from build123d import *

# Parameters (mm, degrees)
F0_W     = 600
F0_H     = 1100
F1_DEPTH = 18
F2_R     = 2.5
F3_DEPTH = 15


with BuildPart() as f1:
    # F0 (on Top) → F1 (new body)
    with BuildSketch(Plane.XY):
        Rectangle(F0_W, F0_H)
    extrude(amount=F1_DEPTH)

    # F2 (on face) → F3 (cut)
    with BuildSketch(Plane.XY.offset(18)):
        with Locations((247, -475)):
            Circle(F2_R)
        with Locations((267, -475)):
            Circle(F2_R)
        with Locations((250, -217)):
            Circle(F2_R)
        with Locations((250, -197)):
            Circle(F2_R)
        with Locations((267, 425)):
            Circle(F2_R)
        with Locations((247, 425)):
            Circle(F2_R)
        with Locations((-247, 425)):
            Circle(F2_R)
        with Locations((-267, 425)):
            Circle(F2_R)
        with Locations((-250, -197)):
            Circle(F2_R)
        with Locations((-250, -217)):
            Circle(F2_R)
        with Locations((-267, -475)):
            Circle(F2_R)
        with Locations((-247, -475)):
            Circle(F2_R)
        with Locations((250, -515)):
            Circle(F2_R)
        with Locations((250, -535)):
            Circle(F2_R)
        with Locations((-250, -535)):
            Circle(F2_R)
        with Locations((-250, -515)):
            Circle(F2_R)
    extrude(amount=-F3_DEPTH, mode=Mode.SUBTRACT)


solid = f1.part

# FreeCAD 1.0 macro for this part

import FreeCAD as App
import Part
import Sketcher
Q = App.Units.Quantity

doc = App.newDocument("Part")
params = doc.addObject("Spreadsheet::Sheet", "Params")
for row, (alias, value) in enumerate([
    ("sketch1_width", "600 mm"),
    ("sketch1_height", "1100 mm"),
    ("pad1_length", "18 mm"),
    ("sketch2_diameter", "5 mm"),
    ("pocket1_length", "15 mm"),
], start=1):
    params.set(f"A{row}", alias)
    params.set(f"B{row}", "=" + value)
    params.setAlias(f"B{row}", alias)

body = doc.addObject("PartDesign::Body", "Body")

# Sketch on XY plane
sketch1 = body.newObject("Sketcher::SketchObject", "Sketch")
sketch1.AttachmentSupport = (doc.getObject("XY_Plane"), [""])
sketch1.MapMode = "FlatFace"
sketch1.addGeometry([
    Part.LineSegment(App.Vector(-300, 550, 0), App.Vector(-300, -550, 0)),
    Part.LineSegment(App.Vector(-300, -550, 0), App.Vector(300, -550, 0)),
    Part.LineSegment(App.Vector(300, -550, 0), App.Vector(300, 550, 0)),
    Part.LineSegment(App.Vector(300, 550, 0), App.Vector(-300, 550, 0)),
], False)
sketch1.addConstraint([
    Sketcher.Constraint("Coincident", 0, 2, 1, 1),
    Sketcher.Constraint("Coincident", 1, 2, 2, 1),
    Sketcher.Constraint("Coincident", 2, 2, 3, 1),
    Sketcher.Constraint("Coincident", 3, 2, 0, 1),
    Sketcher.Constraint("Vertical", 0),
    Sketcher.Constraint("Horizontal", 1),
    Sketcher.Constraint("Vertical", 2),
    Sketcher.Constraint("Horizontal", 3),
    Sketcher.Constraint("Symmetric", 0, 2, 2, 2, -1, 1),
    Sketcher.Constraint("DistanceX", 1, 1, 1, 2, Q("600 mm")),
    Sketcher.Constraint("DistanceY", 0, 2, 0, 1, Q("1100 mm")),
])
sketch1.setExpression("Constraints[9]", "Params.sketch1_width")
sketch1.setExpression("Constraints[10]", "Params.sketch1_height")
pad1 = body.newObject("PartDesign::Pad", "Pad")
pad1.Profile = sketch1
pad1.setExpression("Length", "Params.pad1_length")

# Sketch on XY plane
sketch2 = body.newObject("Sketcher::SketchObject", "Sketch001")
sketch2.AttachmentSupport = (doc.getObject("XY_Plane"), [""])
sketch2.MapMode = "FlatFace"
sketch2.AttachmentOffset = App.Placement(App.Vector(0, 0, 18), App.Rotation())
sketch2.addGeometry([
    Part.Circle(App.Vector(247, -475, 0), App.Vector(0, 0, 1), 2.5),  # 0
    Part.Circle(App.Vector(267, -475, 0), App.Vector(0, 0, 1), 2.5),  # 1
    Part.Circle(App.Vector(250, -217, 0), App.Vector(0, 0, 1), 2.5),  # 2
    Part.Circle(App.Vector(250, -197, 0), App.Vector(0, 0, 1), 2.5),  # 3
    Part.Circle(App.Vector(267, 425, 0), App.Vector(0, 0, 1), 2.5),  # 4
    Part.Circle(App.Vector(247, 425, 0), App.Vector(0, 0, 1), 2.5),  # 5
    Part.Circle(App.Vector(-247, 425, 0), App.Vector(0, 0, 1), 2.5),  # 6
    Part.Circle(App.Vector(-267, 425, 0), App.Vector(0, 0, 1), 2.5),  # 7
    Part.Circle(App.Vector(-250, -197, 0), App.Vector(0, 0, 1), 2.5),  # 8
    Part.Circle(App.Vector(-250, -217, 0), App.Vector(0, 0, 1), 2.5),  # 9
    Part.Circle(App.Vector(-267, -475, 0), App.Vector(0, 0, 1), 2.5),  # 10
    Part.Circle(App.Vector(-247, -475, 0), App.Vector(0, 0, 1), 2.5),  # 11
    Part.Circle(App.Vector(250, -515, 0), App.Vector(0, 0, 1), 2.5),  # 12
    Part.Circle(App.Vector(250, -535, 0), App.Vector(0, 0, 1), 2.5),  # 13
    Part.Circle(App.Vector(-250, -535, 0), App.Vector(0, 0, 1), 2.5),  # 14
    Part.Circle(App.Vector(-250, -515, 0), App.Vector(0, 0, 1), 2.5),  # 15
], False)
sketch2.addConstraint([
    Sketcher.Constraint("Equal", 0, 1),
    Sketcher.Constraint("Equal", 1, 2),
    Sketcher.Constraint("Equal", 2, 3),
    Sketcher.Constraint("Equal", 3, 4),
    Sketcher.Constraint("Equal", 4, 5),
    Sketcher.Constraint("Equal", 5, 6),
    Sketcher.Constraint("Equal", 6, 7),
    Sketcher.Constraint("Equal", 7, 8),
    Sketcher.Constraint("Equal", 8, 9),
    Sketcher.Constraint("Equal", 9, 10),
    Sketcher.Constraint("Equal", 10, 11),
    Sketcher.Constraint("Equal", 11, 12),
    Sketcher.Constraint("Equal", 12, 13),
    Sketcher.Constraint("Equal", 13, 14),
    Sketcher.Constraint("Equal", 14, 15),
    Sketcher.Constraint("Symmetric", 5, 3, 6, 3, -2),
    Sketcher.Constraint("Symmetric", 4, 3, 7, 3, -2),
    Sketcher.Constraint("Symmetric", 3, 3, 8, 3, -2),
    Sketcher.Constraint("Symmetric", 2, 3, 9, 3, -2),
    Sketcher.Constraint("Symmetric", 1, 3, 10, 3, -2),
    Sketcher.Constraint("Symmetric", 0, 3, 11, 3, -2),
    Sketcher.Constraint("Symmetric", 13, 3, 14, 3, -2),
    Sketcher.Constraint("Symmetric", 12, 3, 15, 3, -2),
    Sketcher.Constraint("Horizontal", 0, 3, 1, 3),
    Sketcher.Constraint("Horizontal", 4, 3, 5, 3),
    Sketcher.Constraint("Vertical", 2, 3, 3, 3),
    Sketcher.Constraint("Vertical", 1, 3, 4, 3),
    Sketcher.Constraint("Vertical", 0, 3, 5, 3),
    Sketcher.Constraint("Vertical", 3, 3, 12, 3),
    Sketcher.Constraint("Vertical", 12, 3, 13, 3),
    Sketcher.Constraint("Diameter", 0, Q("5 mm")),
    Sketcher.Constraint("DistanceX", -1, 1, 0, 3, Q("247 mm")),
    Sketcher.Constraint("DistanceY", 0, 3, -1, 1, Q("475 mm")),
    Sketcher.Constraint("DistanceX", -1, 1, 1, 3, Q("267 mm")),
    Sketcher.Constraint("DistanceX", -1, 1, 2, 3, Q("250 mm")),
    Sketcher.Constraint("DistanceY", 2, 3, -1, 1, Q("217 mm")),
    Sketcher.Constraint("DistanceY", 3, 3, -1, 1, Q("197 mm")),
    Sketcher.Constraint("DistanceY", -1, 1, 4, 3, Q("425 mm")),
    Sketcher.Constraint("DistanceY", 12, 3, -1, 1, Q("515 mm")),
    Sketcher.Constraint("DistanceY", 13, 3, -1, 1, Q("535 mm")),
])
sketch2.setExpression("Constraints[30]", "Params.sketch2_diameter")
pocket1 = body.newObject("PartDesign::Pocket", "Pocket")
pocket1.Profile = sketch2
pocket1.setExpression("Length", "Params.pocket1_length")

doc.recompute()
